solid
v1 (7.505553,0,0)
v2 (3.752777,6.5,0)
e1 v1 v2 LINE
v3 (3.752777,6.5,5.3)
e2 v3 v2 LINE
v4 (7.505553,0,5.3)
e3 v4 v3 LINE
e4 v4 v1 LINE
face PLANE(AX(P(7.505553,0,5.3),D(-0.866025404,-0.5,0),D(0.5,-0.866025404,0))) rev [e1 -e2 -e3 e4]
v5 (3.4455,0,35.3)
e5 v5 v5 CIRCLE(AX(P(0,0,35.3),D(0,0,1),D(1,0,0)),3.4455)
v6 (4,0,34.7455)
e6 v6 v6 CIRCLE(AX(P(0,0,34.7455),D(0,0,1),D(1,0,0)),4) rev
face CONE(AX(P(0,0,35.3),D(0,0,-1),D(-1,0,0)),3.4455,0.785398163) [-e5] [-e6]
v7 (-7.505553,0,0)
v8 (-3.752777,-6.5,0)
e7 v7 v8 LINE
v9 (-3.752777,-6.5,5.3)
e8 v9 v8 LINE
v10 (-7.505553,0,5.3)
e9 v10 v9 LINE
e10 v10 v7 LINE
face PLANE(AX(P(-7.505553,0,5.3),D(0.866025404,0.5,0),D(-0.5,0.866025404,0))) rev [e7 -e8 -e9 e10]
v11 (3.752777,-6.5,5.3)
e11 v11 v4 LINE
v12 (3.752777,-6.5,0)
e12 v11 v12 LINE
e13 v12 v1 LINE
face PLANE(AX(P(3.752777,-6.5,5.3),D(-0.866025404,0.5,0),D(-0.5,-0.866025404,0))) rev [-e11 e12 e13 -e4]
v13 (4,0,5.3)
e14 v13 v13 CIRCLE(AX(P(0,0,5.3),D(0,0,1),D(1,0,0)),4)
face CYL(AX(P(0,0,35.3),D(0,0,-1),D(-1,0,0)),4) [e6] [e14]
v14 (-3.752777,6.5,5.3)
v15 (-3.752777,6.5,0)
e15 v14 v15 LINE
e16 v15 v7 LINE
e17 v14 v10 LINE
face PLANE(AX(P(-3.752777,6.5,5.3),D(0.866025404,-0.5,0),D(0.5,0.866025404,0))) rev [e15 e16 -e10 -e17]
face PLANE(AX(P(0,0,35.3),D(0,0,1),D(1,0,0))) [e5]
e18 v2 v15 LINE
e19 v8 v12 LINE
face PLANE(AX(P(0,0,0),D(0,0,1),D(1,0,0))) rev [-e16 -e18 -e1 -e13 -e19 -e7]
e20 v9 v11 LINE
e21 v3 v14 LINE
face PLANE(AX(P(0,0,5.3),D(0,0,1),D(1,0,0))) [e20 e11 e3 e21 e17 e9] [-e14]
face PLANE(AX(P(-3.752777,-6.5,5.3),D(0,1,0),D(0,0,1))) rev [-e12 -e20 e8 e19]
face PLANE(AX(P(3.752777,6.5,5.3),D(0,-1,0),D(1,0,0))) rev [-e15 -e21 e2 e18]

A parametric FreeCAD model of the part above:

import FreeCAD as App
import Part
import Sketcher
Q = App.Units.Quantity


def edges_at(feature, points):
    """Names of the edges that pass closest to the given points."""
    edges = feature.Shape.Edges
    near = lambda p: min(range(len(edges)), key=lambda i: edges[i].distToShape(Part.Vertex(*p))[0])
    return sorted({f"Edge{near(p) + 1}" for p in points})


def add_polygon(sketch, points):
    """Adds a closed chain of lines whose ends are joined by coincident constraints."""
    first, n = sketch.GeometryCount, len(points)
    for a, b in zip(points, points[1:] + points[:1]):
        sketch.addGeometry(Part.LineSegment(App.Vector(*a, 0), App.Vector(*b, 0)), False)
    for i in range(n):
        sketch.addConstraint(Sketcher.Constraint("Coincident", first + i, 2, first + (i + 1) % n, 1))

doc = App.newDocument("Part")
body = doc.addObject("PartDesign::Body", "Body")

# Sketch on XY plane
sketch1 = doc.addObject("Sketcher::SketchObject", "Sketch")
body.addObject(sketch1)
sketch1.AttachmentSupport = (doc.XY_Plane, [""])
sketch1.MapMode = "FlatFace"
add_polygon(sketch1, [(3.752777, 6.5), (-3.752777, 6.5), (-7.505553, 0), (-3.752777, -6.5), (3.752777, -6.5), (7.505553, 0)])  # lines 0-5
sketch1.addConstraint(Sketcher.Constraint("Horizontal", 0))
sketch1.addConstraint(Sketcher.Constraint("Horizontal", 3))
sketch1.addConstraint(Sketcher.Constraint("Symmetric", 0, 2, 3, 2, -1, 1))
sketch1.addConstraint(Sketcher.Constraint("Symmetric", 1, 2, 4, 2, -1, 1))
sketch1.addConstraint(Sketcher.Constraint("PointOnObject", 1, 2, -1))
sketch1.addConstraint(Sketcher.Constraint("Parallel", 2, 5))
sketch1.addConstraint(Sketcher.Constraint("Vertical", 0, 2, 2, 2))
sketch1.addConstraint(Sketcher.Constraint("Angle", 1, Q("-120 deg")))
sketch1.addConstraint(Sketcher.Constraint("DistanceY", 2, 2, 0, 2, Q("13 mm")))
sketch1.addConstraint(Sketcher.Constraint("DistanceX", 0, 2, 0, 1, Q("7.505554 mm")))
pad1 = doc.addObject("PartDesign::Pad", "Pad")
body.addObject(pad1)
pad1.Profile = sketch1
pad1.Length = 5.3

# Sketch on XY plane
sketch2 = doc.addObject("Sketcher::SketchObject", "Sketch001")
body.addObject(sketch2)
sketch2.AttachmentSupport = (doc.XY_Plane, [""])
sketch2.MapMode = "FlatFace"
sketch2.AttachmentOffset = App.Placement(App.Vector(0, 0, 5.3), App.Rotation())
sketch2.addGeometry(Part.Circle(App.Vector(0, 0, 0), App.Vector(0, 0, 1), 4), False)
sketch2.addConstraint(Sketcher.Constraint("Coincident", 0, 3, -1, 1))
sketch2.addConstraint(Sketcher.Constraint("Diameter", 0, Q("8 mm")))
pad2 = doc.addObject("PartDesign::Pad", "Pad001")
body.addObject(pad2)
pad2.Profile = sketch2
pad2.Length = 30
doc.recompute()

chamfer = doc.addObject("PartDesign::Chamfer", "Chamfer")
body.addObject(chamfer)
chamfer.Base = (pad2, edges_at(pad2, [(-4, 0, 35.3)]))
chamfer.Size = 0.5545

doc.recompute()
